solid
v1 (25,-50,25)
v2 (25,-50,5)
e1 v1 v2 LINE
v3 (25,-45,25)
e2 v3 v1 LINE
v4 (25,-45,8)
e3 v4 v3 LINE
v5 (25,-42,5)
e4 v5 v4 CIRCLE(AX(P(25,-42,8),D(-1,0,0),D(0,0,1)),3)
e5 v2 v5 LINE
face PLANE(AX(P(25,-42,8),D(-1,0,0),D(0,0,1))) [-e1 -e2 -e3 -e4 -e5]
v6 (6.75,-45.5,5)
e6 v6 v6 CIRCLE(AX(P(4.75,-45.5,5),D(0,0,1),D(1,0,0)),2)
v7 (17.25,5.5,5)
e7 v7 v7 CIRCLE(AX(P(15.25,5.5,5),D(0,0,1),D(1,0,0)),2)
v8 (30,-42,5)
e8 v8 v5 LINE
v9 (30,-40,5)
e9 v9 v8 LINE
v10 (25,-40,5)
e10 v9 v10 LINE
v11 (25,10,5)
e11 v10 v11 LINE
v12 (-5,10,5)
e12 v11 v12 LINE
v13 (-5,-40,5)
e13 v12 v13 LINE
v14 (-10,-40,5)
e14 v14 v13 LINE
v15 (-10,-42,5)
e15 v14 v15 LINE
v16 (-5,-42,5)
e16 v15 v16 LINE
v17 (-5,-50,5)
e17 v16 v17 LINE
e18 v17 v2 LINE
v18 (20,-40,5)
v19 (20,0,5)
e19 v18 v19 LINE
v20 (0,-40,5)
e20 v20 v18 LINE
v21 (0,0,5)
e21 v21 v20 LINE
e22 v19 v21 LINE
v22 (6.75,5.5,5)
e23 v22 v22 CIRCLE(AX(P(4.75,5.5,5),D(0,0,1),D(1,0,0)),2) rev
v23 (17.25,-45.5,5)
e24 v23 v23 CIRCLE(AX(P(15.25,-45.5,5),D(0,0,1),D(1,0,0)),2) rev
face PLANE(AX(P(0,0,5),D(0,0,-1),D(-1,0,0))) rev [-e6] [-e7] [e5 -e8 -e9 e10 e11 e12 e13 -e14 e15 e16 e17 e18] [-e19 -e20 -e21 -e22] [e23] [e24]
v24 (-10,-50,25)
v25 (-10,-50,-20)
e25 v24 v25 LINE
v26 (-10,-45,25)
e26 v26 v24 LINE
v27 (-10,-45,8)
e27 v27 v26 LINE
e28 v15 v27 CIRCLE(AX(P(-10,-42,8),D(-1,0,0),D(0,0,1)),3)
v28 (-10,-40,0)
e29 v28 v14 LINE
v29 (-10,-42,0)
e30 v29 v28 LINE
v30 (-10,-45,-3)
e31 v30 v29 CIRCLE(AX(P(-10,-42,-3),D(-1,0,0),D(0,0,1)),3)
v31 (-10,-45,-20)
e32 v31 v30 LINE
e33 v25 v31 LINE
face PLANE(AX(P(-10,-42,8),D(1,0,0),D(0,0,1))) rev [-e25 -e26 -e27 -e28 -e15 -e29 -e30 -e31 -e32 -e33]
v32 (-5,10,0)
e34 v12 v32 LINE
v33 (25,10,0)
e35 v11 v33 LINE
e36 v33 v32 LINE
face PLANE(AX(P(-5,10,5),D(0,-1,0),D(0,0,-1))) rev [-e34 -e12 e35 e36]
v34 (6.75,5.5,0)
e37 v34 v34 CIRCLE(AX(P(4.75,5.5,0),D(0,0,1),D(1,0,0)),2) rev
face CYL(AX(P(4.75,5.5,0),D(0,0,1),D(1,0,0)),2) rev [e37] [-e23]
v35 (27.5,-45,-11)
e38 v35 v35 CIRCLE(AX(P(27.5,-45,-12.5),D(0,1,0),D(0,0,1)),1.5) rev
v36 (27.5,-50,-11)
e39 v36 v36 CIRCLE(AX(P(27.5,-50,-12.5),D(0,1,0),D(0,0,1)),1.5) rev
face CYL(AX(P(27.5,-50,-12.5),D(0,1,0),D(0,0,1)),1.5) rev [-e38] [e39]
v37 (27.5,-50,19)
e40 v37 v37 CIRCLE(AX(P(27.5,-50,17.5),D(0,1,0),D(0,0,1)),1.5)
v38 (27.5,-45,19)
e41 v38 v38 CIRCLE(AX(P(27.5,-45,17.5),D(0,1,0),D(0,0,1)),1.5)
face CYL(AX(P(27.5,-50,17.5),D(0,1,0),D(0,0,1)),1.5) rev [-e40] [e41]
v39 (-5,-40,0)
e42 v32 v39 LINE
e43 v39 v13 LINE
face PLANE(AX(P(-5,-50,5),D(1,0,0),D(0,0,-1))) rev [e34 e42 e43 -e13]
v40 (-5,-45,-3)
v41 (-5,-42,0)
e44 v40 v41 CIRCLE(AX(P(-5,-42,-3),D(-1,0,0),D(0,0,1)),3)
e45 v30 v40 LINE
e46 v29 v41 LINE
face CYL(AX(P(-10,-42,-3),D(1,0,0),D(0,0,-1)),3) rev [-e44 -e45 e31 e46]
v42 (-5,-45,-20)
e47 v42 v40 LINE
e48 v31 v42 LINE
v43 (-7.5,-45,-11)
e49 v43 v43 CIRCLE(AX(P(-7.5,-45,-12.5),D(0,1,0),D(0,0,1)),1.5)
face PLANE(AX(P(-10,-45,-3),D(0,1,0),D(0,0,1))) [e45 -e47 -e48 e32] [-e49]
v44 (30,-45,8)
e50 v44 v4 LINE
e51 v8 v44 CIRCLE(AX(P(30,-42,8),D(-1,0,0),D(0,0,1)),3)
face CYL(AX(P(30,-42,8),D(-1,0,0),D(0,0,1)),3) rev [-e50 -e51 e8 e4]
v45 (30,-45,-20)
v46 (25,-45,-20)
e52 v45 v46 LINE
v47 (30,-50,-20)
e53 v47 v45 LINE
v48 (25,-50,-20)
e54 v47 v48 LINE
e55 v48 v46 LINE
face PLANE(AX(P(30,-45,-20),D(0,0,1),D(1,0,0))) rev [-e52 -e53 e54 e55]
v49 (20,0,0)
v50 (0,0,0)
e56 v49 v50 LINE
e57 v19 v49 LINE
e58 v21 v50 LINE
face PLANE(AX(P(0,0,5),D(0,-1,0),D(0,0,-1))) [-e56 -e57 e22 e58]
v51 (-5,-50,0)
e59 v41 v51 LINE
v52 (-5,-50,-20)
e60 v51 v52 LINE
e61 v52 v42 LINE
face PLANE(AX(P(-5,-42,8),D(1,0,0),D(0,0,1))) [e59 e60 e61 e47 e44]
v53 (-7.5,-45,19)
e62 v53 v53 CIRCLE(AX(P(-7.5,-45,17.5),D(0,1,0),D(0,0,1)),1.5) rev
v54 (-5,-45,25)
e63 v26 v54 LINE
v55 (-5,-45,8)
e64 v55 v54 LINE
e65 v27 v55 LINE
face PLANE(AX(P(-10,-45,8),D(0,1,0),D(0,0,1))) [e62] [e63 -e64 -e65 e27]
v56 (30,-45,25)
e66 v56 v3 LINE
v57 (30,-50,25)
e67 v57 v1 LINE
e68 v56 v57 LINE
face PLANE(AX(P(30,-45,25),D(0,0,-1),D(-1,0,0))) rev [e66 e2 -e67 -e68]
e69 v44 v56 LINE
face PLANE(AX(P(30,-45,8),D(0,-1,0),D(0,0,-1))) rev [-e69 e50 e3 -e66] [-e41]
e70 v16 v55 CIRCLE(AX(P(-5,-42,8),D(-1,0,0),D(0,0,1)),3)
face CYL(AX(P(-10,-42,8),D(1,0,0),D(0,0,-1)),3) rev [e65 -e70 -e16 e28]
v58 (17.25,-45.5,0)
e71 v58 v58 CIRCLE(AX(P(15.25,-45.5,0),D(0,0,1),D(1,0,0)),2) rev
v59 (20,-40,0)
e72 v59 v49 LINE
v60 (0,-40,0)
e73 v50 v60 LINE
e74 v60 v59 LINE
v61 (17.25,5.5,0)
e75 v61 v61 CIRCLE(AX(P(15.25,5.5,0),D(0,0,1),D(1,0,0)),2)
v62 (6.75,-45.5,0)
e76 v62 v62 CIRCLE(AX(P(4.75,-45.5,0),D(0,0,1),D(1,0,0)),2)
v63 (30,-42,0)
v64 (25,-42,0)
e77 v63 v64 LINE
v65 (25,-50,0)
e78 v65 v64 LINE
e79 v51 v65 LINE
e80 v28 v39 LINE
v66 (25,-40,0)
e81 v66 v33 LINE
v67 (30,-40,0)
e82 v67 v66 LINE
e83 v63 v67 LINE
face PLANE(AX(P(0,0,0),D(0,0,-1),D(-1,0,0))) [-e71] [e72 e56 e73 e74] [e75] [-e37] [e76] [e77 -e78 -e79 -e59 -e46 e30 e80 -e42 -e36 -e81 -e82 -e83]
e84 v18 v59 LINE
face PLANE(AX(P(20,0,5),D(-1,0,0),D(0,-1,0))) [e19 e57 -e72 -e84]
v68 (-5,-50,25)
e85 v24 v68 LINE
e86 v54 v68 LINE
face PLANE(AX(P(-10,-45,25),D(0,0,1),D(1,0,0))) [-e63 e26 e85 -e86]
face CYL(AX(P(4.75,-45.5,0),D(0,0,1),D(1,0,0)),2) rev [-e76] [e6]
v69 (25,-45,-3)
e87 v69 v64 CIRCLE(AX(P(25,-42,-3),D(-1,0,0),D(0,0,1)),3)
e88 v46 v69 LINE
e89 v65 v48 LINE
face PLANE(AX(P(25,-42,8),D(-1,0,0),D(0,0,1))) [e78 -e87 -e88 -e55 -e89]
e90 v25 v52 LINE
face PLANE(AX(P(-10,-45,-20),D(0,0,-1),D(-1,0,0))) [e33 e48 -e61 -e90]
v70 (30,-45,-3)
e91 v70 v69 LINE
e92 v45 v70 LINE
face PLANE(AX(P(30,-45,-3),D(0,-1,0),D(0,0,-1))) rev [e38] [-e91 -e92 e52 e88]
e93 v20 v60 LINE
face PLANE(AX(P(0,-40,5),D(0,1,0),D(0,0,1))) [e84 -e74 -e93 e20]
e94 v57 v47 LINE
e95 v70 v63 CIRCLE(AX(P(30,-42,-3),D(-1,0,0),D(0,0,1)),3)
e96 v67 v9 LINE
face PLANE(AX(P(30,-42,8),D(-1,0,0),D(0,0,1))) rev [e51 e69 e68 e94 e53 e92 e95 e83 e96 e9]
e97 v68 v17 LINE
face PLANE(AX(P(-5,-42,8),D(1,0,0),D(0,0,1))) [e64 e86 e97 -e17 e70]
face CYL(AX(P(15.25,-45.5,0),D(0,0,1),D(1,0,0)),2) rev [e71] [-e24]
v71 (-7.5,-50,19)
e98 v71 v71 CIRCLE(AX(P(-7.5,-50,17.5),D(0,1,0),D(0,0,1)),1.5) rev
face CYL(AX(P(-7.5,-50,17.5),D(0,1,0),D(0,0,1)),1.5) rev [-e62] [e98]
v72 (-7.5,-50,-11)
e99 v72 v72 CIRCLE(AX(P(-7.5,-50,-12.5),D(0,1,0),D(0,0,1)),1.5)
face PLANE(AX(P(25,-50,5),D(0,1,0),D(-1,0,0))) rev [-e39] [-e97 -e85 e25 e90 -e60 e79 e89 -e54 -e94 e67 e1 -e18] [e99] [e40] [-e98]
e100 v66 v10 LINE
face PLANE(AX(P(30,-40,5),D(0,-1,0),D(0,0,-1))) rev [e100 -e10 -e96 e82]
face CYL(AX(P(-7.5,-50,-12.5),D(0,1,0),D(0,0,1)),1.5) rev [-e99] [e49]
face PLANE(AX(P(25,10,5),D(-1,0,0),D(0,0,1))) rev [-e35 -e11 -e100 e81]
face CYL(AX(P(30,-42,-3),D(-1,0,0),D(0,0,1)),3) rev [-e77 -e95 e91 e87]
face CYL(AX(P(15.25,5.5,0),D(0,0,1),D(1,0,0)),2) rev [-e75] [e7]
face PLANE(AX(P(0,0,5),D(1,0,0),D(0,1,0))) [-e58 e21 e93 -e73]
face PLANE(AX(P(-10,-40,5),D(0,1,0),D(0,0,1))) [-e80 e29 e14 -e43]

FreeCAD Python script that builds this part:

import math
import FreeCAD as App
import Part
import Sketcher


def add_polygon(sketch, points):
    """Adds a closed chain of lines whose ends are joined by coincident constraints."""
    first, n = sketch.GeometryCount, len(points)
    for a, b in zip(points, points[1:] + points[:1]):
        sketch.addGeometry(Part.LineSegment(App.Vector(*a, 0), App.Vector(*b, 0)), False)
    for i in range(n):
        sketch.addConstraint(Sketcher.Constraint("Coincident", first + i, 2, first + (i + 1) % n, 1))

doc = App.newDocument("Part")
params = doc.addObject("Spreadsheet::Sheet", "Params")
for row, (alias, value) in enumerate([
    ("sketch1_width", "30 mm"),
    ("sketch1_width2", "20 mm"),
    ("sketch1_height", "60 mm"),
    ("sketch1_height2", "40 mm"),
    ("pad1_length", "5 mm"),
    ("sketch2_diameter", "4 mm"),
    ("pocket1_length", "5 mm"),
    ("sketch3_radius", "3 mm"),
    ("sketch3_width", "2 mm"),
    ("sketch3_width2", "5 mm"),
    ("sketch3_height", "17 mm"),
    ("pad2_length", "5 mm"),
    ("sketch4_diameter", "3 mm"),
    ("pocket2_length", "5 mm"),
], start=1):
    params.set(f"A{row}", alias)
    params.set(f"B{row}", "=" + value)
    params.setAlias(f"B{row}", alias)

body = doc.addObject("PartDesign::Body", "Body")

sketch1 = doc.addObject("Sketcher::SketchObject", "Sketch")
body.addObject(sketch1)
sketch1.AttachmentSupport = (doc.XY_Plane, [""])
sketch1.MapMode = "FlatFace"
add_polygon(sketch1, [(-5, 10), (-5, -50), (25, -50), (25, 10)])
add_polygon(sketch1, [(20, -40), (0, -40), (0, 0), (20, 0)])
sketch1.addConstraint([
    Sketcher.Constraint("Vertical", 0),
    Sketcher.Constraint("Horizontal", 1),
    Sketcher.Constraint("Vertical", 2),
    Sketcher.Constraint("Horizontal", 3),
    Sketcher.Constraint("Horizontal", 4),
    Sketcher.Constraint("Vertical", 5),
    Sketcher.Constraint("Horizontal", 6),
    Sketcher.Constraint("Vertical", 7),
    Sketcher.Constraint("Coincident", 5, 2, -1, 1),
    Sketcher.Constraint("DistanceX", 1, 1, 1, 2, 30.0),
    Sketcher.Constraint("DistanceX", 4, 2, 4, 1, 20.0),
    Sketcher.Constraint("DistanceY", 0, 2, 0, 1, 60.0),
    Sketcher.Constraint("DistanceY", 5, 1, 5, 2, 40.0),
    Sketcher.Constraint("DistanceX", 0, 2, -1, 1, 5.0),
    Sketcher.Constraint("DistanceY", 0, 2, -1, 1, 50.0),
])
sketch1.setExpression("Constraints[17]", "Params.sketch1_width")
sketch1.setExpression("Constraints[18]", "Params.sketch1_width2")
sketch1.setExpression("Constraints[19]", "Params.sketch1_height")
sketch1.setExpression("Constraints[20]", "Params.sketch1_height2")
pad1 = doc.addObject("PartDesign::Pad", "Pad")
body.addObject(pad1)
pad1.Profile = sketch1
pad1.setExpression("Length", "Params.pad1_length")

sketch2 = doc.addObject("Sketcher::SketchObject", "Sketch001")
body.addObject(sketch2)
sketch2.AttachmentSupport = (doc.XY_Plane, [""])
sketch2.MapMode = "FlatFace"
sketch2.AttachmentOffset = App.Placement(App.Vector(0, 0, 5), App.Rotation())
sketch2.addGeometry([
    Part.Circle(App.Vector(15.2, 5.5, 0), App.Vector(0, 0, 1), 2),
    Part.Circle(App.Vector(15.2, -45.5, 0), App.Vector(0, 0, 1), 2),
    Part.Circle(App.Vector(4.8, -45.5, 0), App.Vector(0, 0, 1), 2),
    Part.Circle(App.Vector(4.8, 5.5, 0), App.Vector(0, 0, 1), 2),
], False)
sketch2.addConstraint([
    Sketcher.Constraint("Equal", 0, 1),
    Sketcher.Constraint("Equal", 1, 2),
    Sketcher.Constraint("Equal", 2, 3),
    Sketcher.Constraint("Horizontal", 1, 3, 2, 3),
    Sketcher.Constraint("Horizontal", 0, 3, 3, 3),
    Sketcher.Constraint("Vertical", 0, 3, 1, 3),
    Sketcher.Constraint("Vertical", 2, 3, 3, 3),
    Sketcher.Constraint("Diameter", 0, 4.0),
    Sketcher.Constraint("DistanceY", 1, 3, 0, 3, 51.0),
    Sketcher.Constraint("DistanceY", -1, 1, 0, 3, 5.5),
    Sketcher.Constraint("DistanceX", 2, 3, 1, 3, 10.5),
    Sketcher.Constraint("DistanceX", -1, 1, 0, 3, 15.25),
])
sketch2.setExpression("Constraints[7]", "Params.sketch2_diameter")
pocket1 = doc.addObject("PartDesign::Pocket", "Pocket")
body.addObject(pocket1)
pocket1.Profile = sketch2
pocket1.setExpression("Length", "Params.pocket1_length")

sketch3 = doc.addObject("Sketcher::SketchObject", "Sketch002")
body.addObject(sketch3)
sketch3.AttachmentSupport = (doc.YZ_Plane, [""])
sketch3.MapMode = "FlatFace"
sketch3.AttachmentOffset = App.Placement(App.Vector(0, 0, 25), App.Rotation())
sketch3.addGeometry([
    Part.LineSegment(App.Vector(-40, 5, 0), App.Vector(-42, 5, 0)),
    Part.ArcOfCircle(Part.Circle(App.Vector(-42, 8, 0), App.Vector(0, 0, 1), 3), math.radians(180), math.radians(270)),
    Part.LineSegment(App.Vector(-45, 8, 0), App.Vector(-45, 25, 0)),
    Part.LineSegment(App.Vector(-45, 25, 0), App.Vector(-50, 25, 0)),
    Part.LineSegment(App.Vector(-50, 25, 0), App.Vector(-50, -20, 0)),
    Part.LineSegment(App.Vector(-50, -20, 0), App.Vector(-45, -20, 0)),
    Part.LineSegment(App.Vector(-45, -20, 0), App.Vector(-45, -3, 0)),
    Part.ArcOfCircle(Part.Circle(App.Vector(-42, -3, 0), App.Vector(0, 0, 1), 3), math.radians(90), math.radians(180)),
    Part.LineSegment(App.Vector(-42, 0, 0), App.Vector(-40, 0, 0)),
    Part.LineSegment(App.Vector(-40, 0, 0), App.Vector(-40, 5, 0)),
], False)
sketch3.addConstraint([
    Sketcher.Constraint("Tangent", 0, 2, 1, 2),
    Sketcher.Constraint("Tangent", 1, 1, 2, 1),
    Sketcher.Constraint("Coincident", 2, 2, 3, 1),
    Sketcher.Constraint("Coincident", 3, 2, 4, 1),
    Sketcher.Constraint("Coincident", 4, 2, 5, 1),
    Sketcher.Constraint("Coincident", 5, 2, 6, 1),
    Sketcher.Constraint("Tangent", 6, 2, 7, 2),
    Sketcher.Constraint("Tangent", 7, 1, 8, 1),
    Sketcher.Constraint("Coincident", 8, 2, 9, 1),
    Sketcher.Constraint("Coincident", 9, 2, 0, 1),
    Sketcher.Constraint("Horizontal", 0),
    Sketcher.Constraint("Vertical", 2),
    Sketcher.Constraint("Horizontal", 3),
    Sketcher.Constraint("Vertical", 4),
    Sketcher.Constraint("Horizontal", 5),
    Sketcher.Constraint("Vertical", 6),
    Sketcher.Constraint("Horizontal", 8),
    Sketcher.Constraint("Vertical", 9),
    Sketcher.Constraint("Equal", 1, 7),
    Sketcher.Constraint("PointOnObject", 7, 1, -1),
    Sketcher.Constraint("Vertical", 1, 3, 7, 3),
    Sketcher.Constraint("Equal", 2, 6),
    Sketcher.Constraint("Equal", 5, 9),
    Sketcher.Constraint("Radius", 1, 3.0),
    Sketcher.Constraint("DistanceX", 0, 2, 0, 1, 2.0),
    Sketcher.Constraint("DistanceX", 3, 2, 3, 1, 5.0),
    Sketcher.Constraint("DistanceY", 2, 1, 2, 2, 17.0),
    Sketcher.Constraint("DistanceX", 1, 3, -1, 1, 42.0),
])
sketch3.setExpression("Constraints[23]", "Params.sketch3_radius")
sketch3.setExpression("Constraints[24]", "Params.sketch3_width")
sketch3.setExpression("Constraints[25]", "Params.sketch3_width2")
sketch3.setExpression("Constraints[26]", "Params.sketch3_height")
pad2 = doc.addObject("PartDesign::Pad", "Pad001")
body.addObject(pad2)
pad2.Profile = sketch3
pad2.setExpression("Length", "Params.pad2_length")
doc.recompute()

datumplane = doc.addObject("PartDesign::Plane", "DatumPlane")
body.addObject(datumplane)
datumplane.AttachmentSupport = (doc.YZ_Plane, [""])
datumplane.MapMode = "FlatFace"
datumplane.AttachmentOffset = App.Placement(App.Vector(0, 0, 10), App.Rotation())
mirrored = doc.addObject("PartDesign::Mirrored", "Mirrored")
body.addObject(mirrored)
mirrored.Originals = [pad2]
mirrored.MirrorPlane = (datumplane, [""])
body.Tip = mirrored

sketch4 = doc.addObject("Sketcher::SketchObject", "Sketch003")
body.addObject(sketch4)
sketch4.AttachmentSupport = (doc.XZ_Plane, [""])
sketch4.MapMode = "FlatFace"
sketch4.AttachmentOffset = App.Placement(App.Vector(0, 0, 45), App.Rotation())
sketch4.addGeometry([
    Part.Circle(App.Vector(-7.5, -12.5, 0), App.Vector(0, 0, 1), 1.5),
    Part.Circle(App.Vector(-7.5, 17.5, 0), App.Vector(0, 0, 1), 1.5),
    Part.Circle(App.Vector(27.5, 17.5, 0), App.Vector(0, 0, 1), 1.5),
    Part.Circle(App.Vector(27.5, -12.5, 0), App.Vector(0, 0, 1), 1.5),
], False)
sketch4.addConstraint([
    Sketcher.Constraint("Equal", 0, 1),
    Sketcher.Constraint("Equal", 1, 2),
    Sketcher.Constraint("Equal", 2, 3),
    Sketcher.Constraint("Horizontal", 1, 3, 2, 3),
    Sketcher.Constraint("Horizontal", 0, 3, 3, 3),
    Sketcher.Constraint("Vertical", 0, 3, 1, 3),
    Sketcher.Constraint("Vertical", 2, 3, 3, 3),
    Sketcher.Constraint("Diameter", 0, 3.0),
    Sketcher.Constraint("DistanceY", 0, 3, 1, 3, 30.0),
    Sketcher.Constraint("DistanceX", 1, 3, 2, 3, 35.0),
    Sketcher.Constraint("DistanceX", 0, 3, -1, 1, 7.5),
    Sketcher.Constraint("DistanceY", 0, 3, -1, 1, 12.5),
])
sketch4.setExpression("Constraints[7]", "Params.sketch4_diameter")
pocket2 = doc.addObject("PartDesign::Pocket", "Pocket001")
body.addObject(pocket2)
pocket2.Profile = sketch4
pocket2.setExpression("Length", "Params.pocket2_length")
pocket2.Reversed = True

doc.recompute()
